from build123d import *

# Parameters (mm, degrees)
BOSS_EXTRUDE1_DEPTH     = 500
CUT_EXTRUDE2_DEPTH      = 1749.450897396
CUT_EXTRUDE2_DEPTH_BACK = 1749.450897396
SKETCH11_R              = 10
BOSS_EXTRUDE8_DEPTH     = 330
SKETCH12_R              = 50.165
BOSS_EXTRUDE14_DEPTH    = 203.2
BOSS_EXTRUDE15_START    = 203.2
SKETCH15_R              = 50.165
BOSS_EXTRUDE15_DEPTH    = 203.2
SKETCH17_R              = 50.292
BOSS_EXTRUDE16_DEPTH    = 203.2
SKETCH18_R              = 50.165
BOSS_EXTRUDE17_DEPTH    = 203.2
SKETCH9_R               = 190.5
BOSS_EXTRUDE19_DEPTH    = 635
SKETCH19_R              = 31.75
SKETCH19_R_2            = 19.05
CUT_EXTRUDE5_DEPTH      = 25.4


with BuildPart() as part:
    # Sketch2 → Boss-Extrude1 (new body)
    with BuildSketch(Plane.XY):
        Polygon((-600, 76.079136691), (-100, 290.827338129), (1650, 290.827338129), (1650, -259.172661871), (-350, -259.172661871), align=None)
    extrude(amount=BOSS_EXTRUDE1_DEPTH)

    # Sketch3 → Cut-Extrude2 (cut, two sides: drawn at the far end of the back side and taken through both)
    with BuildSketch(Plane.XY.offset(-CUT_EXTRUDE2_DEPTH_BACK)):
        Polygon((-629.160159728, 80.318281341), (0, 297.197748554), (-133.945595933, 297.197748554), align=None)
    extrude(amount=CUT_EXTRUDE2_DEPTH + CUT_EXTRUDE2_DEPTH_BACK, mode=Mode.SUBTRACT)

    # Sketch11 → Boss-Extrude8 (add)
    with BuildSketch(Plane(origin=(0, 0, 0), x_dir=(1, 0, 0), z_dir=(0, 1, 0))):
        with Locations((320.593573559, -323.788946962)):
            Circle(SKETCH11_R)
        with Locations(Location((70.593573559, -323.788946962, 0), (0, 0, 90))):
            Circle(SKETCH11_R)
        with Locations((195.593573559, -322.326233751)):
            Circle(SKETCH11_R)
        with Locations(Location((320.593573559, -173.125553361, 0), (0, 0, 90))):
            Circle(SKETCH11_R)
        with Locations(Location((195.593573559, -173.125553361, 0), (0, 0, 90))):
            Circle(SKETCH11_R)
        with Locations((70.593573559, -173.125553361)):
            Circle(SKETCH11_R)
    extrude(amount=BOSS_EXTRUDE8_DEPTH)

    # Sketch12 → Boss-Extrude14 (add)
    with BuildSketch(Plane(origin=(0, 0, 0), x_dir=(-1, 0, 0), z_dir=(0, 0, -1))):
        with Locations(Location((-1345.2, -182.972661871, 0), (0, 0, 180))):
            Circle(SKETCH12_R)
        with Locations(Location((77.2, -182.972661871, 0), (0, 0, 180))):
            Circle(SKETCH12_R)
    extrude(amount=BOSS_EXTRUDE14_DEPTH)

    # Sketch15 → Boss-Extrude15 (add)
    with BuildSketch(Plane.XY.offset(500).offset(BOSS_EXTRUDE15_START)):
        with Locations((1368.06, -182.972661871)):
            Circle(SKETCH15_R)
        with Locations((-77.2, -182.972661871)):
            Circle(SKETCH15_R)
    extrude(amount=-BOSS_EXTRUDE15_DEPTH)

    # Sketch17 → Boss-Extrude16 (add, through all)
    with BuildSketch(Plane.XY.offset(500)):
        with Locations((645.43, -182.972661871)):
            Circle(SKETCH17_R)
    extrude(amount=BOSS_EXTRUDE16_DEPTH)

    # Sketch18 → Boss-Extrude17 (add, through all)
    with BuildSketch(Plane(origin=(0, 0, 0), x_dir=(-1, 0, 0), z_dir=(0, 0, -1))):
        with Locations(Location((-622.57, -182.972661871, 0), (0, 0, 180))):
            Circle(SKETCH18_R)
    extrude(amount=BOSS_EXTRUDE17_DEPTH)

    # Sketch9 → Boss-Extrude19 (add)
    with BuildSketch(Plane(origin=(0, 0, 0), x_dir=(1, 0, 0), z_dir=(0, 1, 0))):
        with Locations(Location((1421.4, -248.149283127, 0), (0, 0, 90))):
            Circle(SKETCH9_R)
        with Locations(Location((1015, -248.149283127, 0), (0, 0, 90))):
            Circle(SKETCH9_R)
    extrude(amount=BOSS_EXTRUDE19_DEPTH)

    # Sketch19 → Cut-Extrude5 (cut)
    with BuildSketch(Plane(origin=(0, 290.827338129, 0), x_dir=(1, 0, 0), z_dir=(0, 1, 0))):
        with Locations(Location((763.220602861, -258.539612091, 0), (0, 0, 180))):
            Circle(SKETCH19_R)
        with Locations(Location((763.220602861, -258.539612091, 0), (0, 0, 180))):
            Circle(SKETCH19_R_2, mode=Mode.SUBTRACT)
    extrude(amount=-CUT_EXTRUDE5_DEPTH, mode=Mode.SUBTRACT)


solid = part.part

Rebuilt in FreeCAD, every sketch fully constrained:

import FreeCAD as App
import Part
import Sketcher
from FreeCAD import Vector
Q = App.Units.Quantity


def add_polygon(sketch, points):
    """Adds a closed chain of lines whose ends are joined by coincident constraints."""
    first, n = sketch.GeometryCount, len(points)
    for a, b in zip(points, points[1:] + points[:1]):
        sketch.addGeometry(Part.LineSegment(App.Vector(*a, 0), App.Vector(*b, 0)), False)
    for i in range(n):
        sketch.addConstraint(Sketcher.Constraint("Coincident", first + i, 2, first + (i + 1) % n, 1))

doc = App.newDocument("Part")
params = doc.addObject("Spreadsheet::Sheet", "Params")
for row, (alias, value) in enumerate([
    ("pad1_length", "500 mm"),
    ("pad2_length", "330 mm"),
    ("sketch4_diameter", "3.95 in"),
    ("pad3_length", "8 in"),
    ("sketch5_diameter", "3.95 in"),
    ("pad4_length", "8 in"),
    ("sketch6_diameter", "3.96 in"),
    ("pad5_length", "8 in"),
    ("sketch7_diameter", "3.95 in"),
    ("pad6_length", "8 in"),
    ("sketch8_diameter", "15 in"),
    ("pad7_length", "25 in"),
    ("sketch9_diameter", "2.5 in"),
    ("sketch9_diameter2", "1.5 in"),
    ("pocket2_length", "1 in"),
], start=1):
    params.set(f"A{row}", alias)
    params.set(f"B{row}", "=" + value)
    params.setAlias(f"B{row}", alias)

body = doc.addObject("PartDesign::Body", "Body")

# Sketch on XY plane
sketch1 = body.newObject("Sketcher::SketchObject", "Sketch")
sketch1.AttachmentSupport = (doc.getObject("XY_Plane"), [""])
sketch1.MapMode = "FlatFace"
add_polygon(sketch1, [(-100, 291), (-600, 76), (-350, -259), (1650, -259), (1650, 291)])  # lines 0-4
sketch1.addConstraint([
    Sketcher.Constraint("Horizontal", 2),
    Sketcher.Constraint("Vertical", 3),
    Sketcher.Constraint("Horizontal", 4),
    Sketcher.Constraint("DistanceX", 2, 1, 2, 2, 2000.0),
    Sketcher.Constraint("DistanceX", 4, 2, 4, 1, 1750.0),
    Sketcher.Constraint("DistanceY", 3, 1, 3, 2, 550.0),
    Sketcher.Constraint("DistanceX", 0, 2, -1, 1, 600.0),
    Sketcher.Constraint("DistanceX", 1, 2, -1, 1, 350.0),
    Sketcher.Constraint("DistanceY", 1, 2, 0, 2, 335.251799),
    Sketcher.Constraint("DistanceY", 1, 2, -1, 1, 259.172662),
])
pad1 = body.newObject("PartDesign::Pad", "Pad")
pad1.Profile = sketch1
pad1.setExpression("Length", "Params.pad1_length")

# Sketch on XY plane
sketch2 = body.newObject("Sketcher::SketchObject", "Sketch001")
sketch2.AttachmentSupport = (doc.getObject("XY_Plane"), [""])
sketch2.MapMode = "FlatFace"
add_polygon(sketch2, [(-629, 80), (0, 297), (-134, 297)])  # lines 0-2
sketch2.addConstraint([
    Sketcher.Constraint("Horizontal", 1),
    Sketcher.Constraint("PointOnObject", 0, 2, -2),
    Sketcher.Constraint("Distance", 2, 540.623869),
    Sketcher.Constraint("DistanceX", 1, 2, 1, 1, 133.945596),
    Sketcher.Constraint("DistanceY", -1, 1, 0, 2, 297.197749),
    Sketcher.Constraint("DistanceX", 2, 2, -1, 1, 629.16016),
])
pocket1 = body.newObject("PartDesign::Pocket", "Pocket")
pocket1.Profile = sketch2
pocket1.Type = "ThroughAll"
pocket1.Midplane = True

# Sketch on XZ plane
sketch3 = body.newObject("Sketcher::SketchObject", "Sketch002")
sketch3.AttachmentSupport = (doc.getObject("XZ_Plane"), [""])
sketch3.MapMode = "FlatFace"
sketch3.addGeometry([
    Part.Circle(Vector(321, 324, 0), Vector(0, 0, 1), 10),  # 0
    Part.Circle(Vector(71, 324, 0), Vector(0, 0, 1), 10),  # 1
    Part.Circle(Vector(196, 322, 0), Vector(0, 0, 1), 10),  # 2
    Part.Circle(Vector(321, 173, 0), Vector(0, 0, 1), 10),  # 3
    Part.Circle(Vector(196, 173, 0), Vector(0, 0, 1), 10),  # 4
    Part.Circle(Vector(71, 173, 0), Vector(0, 0, 1), 10),  # 5
], False)
sketch3.addConstraint([
    Sketcher.Constraint("Equal", 0, 1),
    Sketcher.Constraint("Equal", 1, 2),
    Sketcher.Constraint("Equal", 2, 3),
    Sketcher.Constraint("Equal", 3, 4),
    Sketcher.Constraint("Equal", 4, 5),
    Sketcher.Constraint("Horizontal", 0, 3, 1, 3),
    Sketcher.Constraint("Horizontal", 3, 3, 4, 3),
    Sketcher.Constraint("Horizontal", 4, 3, 5, 3),
    Sketcher.Constraint("Vertical", 0, 3, 3, 3),
    Sketcher.Constraint("Vertical", 2, 3, 4, 3),
    Sketcher.Constraint("Vertical", 1, 3, 5, 3),
    Sketcher.Constraint("Diameter", 0, 20.0),
    Sketcher.Constraint("DistanceX", 1, 3, 0, 3, 250.0),
    Sketcher.Constraint("DistanceX", 1, 3, 2, 3, 125.0),
    Sketcher.Constraint("DistanceY", 3, 3, 2, 3, 149.20068),
    Sketcher.Constraint("DistanceX", -1, 1, 0, 3, 320.593574),
    Sketcher.Constraint("DistanceY", -1, 1, 0, 3, 323.788947),
    Sketcher.Constraint("DistanceY", -1, 1, 2, 3, 322.326234),
])
pad2 = body.newObject("PartDesign::Pad", "Pad001")
pad2.Profile = sketch3
pad2.setExpression("Length", "Params.pad2_length")
pad2.Reversed = True

# Sketch on XY plane
sketch4 = body.newObject("Sketcher::SketchObject", "Sketch003")
sketch4.AttachmentSupport = (doc.getObject("XY_Plane"), [""])
sketch4.MapMode = "FlatFace"
sketch4.addGeometry([
    Part.Circle(Vector(1345, -183, 0), Vector(0, 0, 1), 50),
    Part.Circle(Vector(-77, -183, 0), Vector(0, 0, 1), 50),
], False)
sketch4.addConstraint([
    Sketcher.Constraint("Equal", 0, 1),
    Sketcher.Constraint("Horizontal", 0, 3, 1, 3),
    Sketcher.Constraint("Diameter", 0, Q("3.95 in")),
    Sketcher.Constraint("DistanceX", 1, 3, 0, 3, Q("56 in")),
    Sketcher.Constraint("DistanceX", -1, 1, 0, 3, 1345.2),
    Sketcher.Constraint("DistanceY", 0, 3, -1, 1, 182.972662),
])
sketch4.setExpression("Constraints[2]", "Params.sketch4_diameter")
pad3 = body.newObject("PartDesign::Pad", "Pad002")
pad3.Profile = sketch4
pad3.setExpression("Length", "Params.pad3_length")
pad3.Reversed = True

# Sketch on XY plane
sketch5 = body.newObject("Sketcher::SketchObject", "Sketch004")
sketch5.AttachmentSupport = (doc.getObject("XY_Plane"), [""])
sketch5.MapMode = "FlatFace"
sketch5.AttachmentOffset = App.Placement(Vector(0, 0, 703.2), App.Rotation())
sketch5.addGeometry([
    Part.Circle(Vector(1368, -183, 0), Vector(0, 0, 1), 50),
    Part.Circle(Vector(-77, -183, 0), Vector(0, 0, 1), 50),
], False)
sketch5.addConstraint([
    Sketcher.Constraint("Equal", 0, 1),
    Sketcher.Constraint("Horizontal", 0, 3, 1, 3),
    Sketcher.Constraint("Diameter", 0, Q("3.95 in")),
    Sketcher.Constraint("DistanceX", 1, 3, 0, 3, Q("56.9 in")),
    Sketcher.Constraint("DistanceX", -1, 1, 0, 3, 1368.06),
    Sketcher.Constraint("DistanceY", 0, 3, -1, 1, 182.972662),
])
sketch5.setExpression("Constraints[2]", "Params.sketch5_diameter")
pad4 = body.newObject("PartDesign::Pad", "Pad003")
pad4.Profile = sketch5
pad4.setExpression("Length", "Params.pad4_length")
pad4.Reversed = True

# Sketch on XY plane
sketch6 = body.newObject("Sketcher::SketchObject", "Sketch005")
sketch6.AttachmentSupport = (doc.getObject("XY_Plane"), [""])
sketch6.MapMode = "FlatFace"
sketch6.AttachmentOffset = App.Placement(Vector(0, 0, 500), App.Rotation())
sketch6.addGeometry(Part.Circle(Vector(645, -183, 0), Vector(0, 0, 1), 50), False)
sketch6.addConstraint([
    Sketcher.Constraint("Diameter", 0, Q("3.96 in")),
    Sketcher.Constraint("DistanceX", -1, 1, 0, 3, 645.43),
    Sketcher.Constraint("DistanceY", 0, 3, -1, 1, 182.972662),
])
sketch6.setExpression("Constraints[0]", "Params.sketch6_diameter")
pad5 = body.newObject("PartDesign::Pad", "Pad004")
pad5.Profile = sketch6
pad5.setExpression("Length", "Params.pad5_length")

# Sketch on XY plane
sketch7 = body.newObject("Sketcher::SketchObject", "Sketch006")
sketch7.AttachmentSupport = (doc.getObject("XY_Plane"), [""])
sketch7.MapMode = "FlatFace"
sketch7.addGeometry(Part.Circle(Vector(623, -183, 0), Vector(0, 0, 1), 50), False)
sketch7.addConstraint([
    Sketcher.Constraint("Diameter", 0, Q("3.95 in")),
    Sketcher.Constraint("DistanceX", -1, 1, 0, 3, 622.57),
    Sketcher.Constraint("DistanceY", 0, 3, -1, 1, 182.972662),
])
sketch7.setExpression("Constraints[0]", "Params.sketch7_diameter")
pad6 = body.newObject("PartDesign::Pad", "Pad005")
pad6.Profile = sketch7
pad6.setExpression("Length", "Params.pad6_length")
pad6.Reversed = True

# Sketch on XZ plane
sketch8 = body.newObject("Sketcher::SketchObject", "Sketch007")
sketch8.AttachmentSupport = (doc.getObject("XZ_Plane"), [""])
sketch8.MapMode = "FlatFace"
sketch8.addGeometry([
    Part.Circle(Vector(1421, 248, 0), Vector(0, 0, 1), 190),
    Part.Circle(Vector(1015, 248, 0), Vector(0, 0, 1), 190),
], False)
sketch8.addConstraint([
    Sketcher.Constraint("Equal", 0, 1),
    Sketcher.Constraint("Horizontal", 0, 3, 1, 3),
    Sketcher.Constraint("Diameter", 0, Q("15 in")),
    Sketcher.Constraint("DistanceX", 1, 3, 0, 3, Q("16 in")),
    Sketcher.Constraint("DistanceX", -1, 1, 0, 3, 1421.4),
    Sketcher.Constraint("DistanceY", -1, 1, 0, 3, 248.149283),
])
sketch8.setExpression("Constraints[2]", "Params.sketch8_diameter")
pad7 = body.newObject("PartDesign::Pad", "Pad006")
pad7.Profile = sketch8
pad7.setExpression("Length", "Params.pad7_length")
pad7.Reversed = True

# Sketch on XZ plane
sketch9 = body.newObject("Sketcher::SketchObject", "Sketch008")
sketch9.AttachmentSupport = (doc.getObject("XZ_Plane"), [""])
sketch9.MapMode = "FlatFace"
sketch9.AttachmentOffset = App.Placement(Vector(0, 0, -290.827338), App.Rotation())
sketch9.addGeometry([
    Part.Circle(Vector(763, 259, 0), Vector(0, 0, 1), 32),
    Part.Circle(Vector(763, 259, 0), Vector(0, 0, 1), 19),
], False)
sketch9.addConstraint([
    Sketcher.Constraint("Coincident", 1, 3, 0, 3),
    Sketcher.Constraint("Diameter", 0, Q("2.5 in")),
    Sketcher.Constraint("Diameter", 1, Q("1.5 in")),
    Sketcher.Constraint("DistanceX", -1, 1, 0, 3, 763.220603),
    Sketcher.Constraint("DistanceY", -1, 1, 0, 3, 258.539612),
])
sketch9.setExpression("Constraints[1]", "Params.sketch9_diameter")
sketch9.setExpression("Constraints[2]", "Params.sketch9_diameter2")
pocket2 = body.newObject("PartDesign::Pocket", "Pocket001")
pocket2.Profile = sketch9
pocket2.setExpression("Length", "Params.pocket2_length")
pocket2.Reversed = True

doc.recompute()
